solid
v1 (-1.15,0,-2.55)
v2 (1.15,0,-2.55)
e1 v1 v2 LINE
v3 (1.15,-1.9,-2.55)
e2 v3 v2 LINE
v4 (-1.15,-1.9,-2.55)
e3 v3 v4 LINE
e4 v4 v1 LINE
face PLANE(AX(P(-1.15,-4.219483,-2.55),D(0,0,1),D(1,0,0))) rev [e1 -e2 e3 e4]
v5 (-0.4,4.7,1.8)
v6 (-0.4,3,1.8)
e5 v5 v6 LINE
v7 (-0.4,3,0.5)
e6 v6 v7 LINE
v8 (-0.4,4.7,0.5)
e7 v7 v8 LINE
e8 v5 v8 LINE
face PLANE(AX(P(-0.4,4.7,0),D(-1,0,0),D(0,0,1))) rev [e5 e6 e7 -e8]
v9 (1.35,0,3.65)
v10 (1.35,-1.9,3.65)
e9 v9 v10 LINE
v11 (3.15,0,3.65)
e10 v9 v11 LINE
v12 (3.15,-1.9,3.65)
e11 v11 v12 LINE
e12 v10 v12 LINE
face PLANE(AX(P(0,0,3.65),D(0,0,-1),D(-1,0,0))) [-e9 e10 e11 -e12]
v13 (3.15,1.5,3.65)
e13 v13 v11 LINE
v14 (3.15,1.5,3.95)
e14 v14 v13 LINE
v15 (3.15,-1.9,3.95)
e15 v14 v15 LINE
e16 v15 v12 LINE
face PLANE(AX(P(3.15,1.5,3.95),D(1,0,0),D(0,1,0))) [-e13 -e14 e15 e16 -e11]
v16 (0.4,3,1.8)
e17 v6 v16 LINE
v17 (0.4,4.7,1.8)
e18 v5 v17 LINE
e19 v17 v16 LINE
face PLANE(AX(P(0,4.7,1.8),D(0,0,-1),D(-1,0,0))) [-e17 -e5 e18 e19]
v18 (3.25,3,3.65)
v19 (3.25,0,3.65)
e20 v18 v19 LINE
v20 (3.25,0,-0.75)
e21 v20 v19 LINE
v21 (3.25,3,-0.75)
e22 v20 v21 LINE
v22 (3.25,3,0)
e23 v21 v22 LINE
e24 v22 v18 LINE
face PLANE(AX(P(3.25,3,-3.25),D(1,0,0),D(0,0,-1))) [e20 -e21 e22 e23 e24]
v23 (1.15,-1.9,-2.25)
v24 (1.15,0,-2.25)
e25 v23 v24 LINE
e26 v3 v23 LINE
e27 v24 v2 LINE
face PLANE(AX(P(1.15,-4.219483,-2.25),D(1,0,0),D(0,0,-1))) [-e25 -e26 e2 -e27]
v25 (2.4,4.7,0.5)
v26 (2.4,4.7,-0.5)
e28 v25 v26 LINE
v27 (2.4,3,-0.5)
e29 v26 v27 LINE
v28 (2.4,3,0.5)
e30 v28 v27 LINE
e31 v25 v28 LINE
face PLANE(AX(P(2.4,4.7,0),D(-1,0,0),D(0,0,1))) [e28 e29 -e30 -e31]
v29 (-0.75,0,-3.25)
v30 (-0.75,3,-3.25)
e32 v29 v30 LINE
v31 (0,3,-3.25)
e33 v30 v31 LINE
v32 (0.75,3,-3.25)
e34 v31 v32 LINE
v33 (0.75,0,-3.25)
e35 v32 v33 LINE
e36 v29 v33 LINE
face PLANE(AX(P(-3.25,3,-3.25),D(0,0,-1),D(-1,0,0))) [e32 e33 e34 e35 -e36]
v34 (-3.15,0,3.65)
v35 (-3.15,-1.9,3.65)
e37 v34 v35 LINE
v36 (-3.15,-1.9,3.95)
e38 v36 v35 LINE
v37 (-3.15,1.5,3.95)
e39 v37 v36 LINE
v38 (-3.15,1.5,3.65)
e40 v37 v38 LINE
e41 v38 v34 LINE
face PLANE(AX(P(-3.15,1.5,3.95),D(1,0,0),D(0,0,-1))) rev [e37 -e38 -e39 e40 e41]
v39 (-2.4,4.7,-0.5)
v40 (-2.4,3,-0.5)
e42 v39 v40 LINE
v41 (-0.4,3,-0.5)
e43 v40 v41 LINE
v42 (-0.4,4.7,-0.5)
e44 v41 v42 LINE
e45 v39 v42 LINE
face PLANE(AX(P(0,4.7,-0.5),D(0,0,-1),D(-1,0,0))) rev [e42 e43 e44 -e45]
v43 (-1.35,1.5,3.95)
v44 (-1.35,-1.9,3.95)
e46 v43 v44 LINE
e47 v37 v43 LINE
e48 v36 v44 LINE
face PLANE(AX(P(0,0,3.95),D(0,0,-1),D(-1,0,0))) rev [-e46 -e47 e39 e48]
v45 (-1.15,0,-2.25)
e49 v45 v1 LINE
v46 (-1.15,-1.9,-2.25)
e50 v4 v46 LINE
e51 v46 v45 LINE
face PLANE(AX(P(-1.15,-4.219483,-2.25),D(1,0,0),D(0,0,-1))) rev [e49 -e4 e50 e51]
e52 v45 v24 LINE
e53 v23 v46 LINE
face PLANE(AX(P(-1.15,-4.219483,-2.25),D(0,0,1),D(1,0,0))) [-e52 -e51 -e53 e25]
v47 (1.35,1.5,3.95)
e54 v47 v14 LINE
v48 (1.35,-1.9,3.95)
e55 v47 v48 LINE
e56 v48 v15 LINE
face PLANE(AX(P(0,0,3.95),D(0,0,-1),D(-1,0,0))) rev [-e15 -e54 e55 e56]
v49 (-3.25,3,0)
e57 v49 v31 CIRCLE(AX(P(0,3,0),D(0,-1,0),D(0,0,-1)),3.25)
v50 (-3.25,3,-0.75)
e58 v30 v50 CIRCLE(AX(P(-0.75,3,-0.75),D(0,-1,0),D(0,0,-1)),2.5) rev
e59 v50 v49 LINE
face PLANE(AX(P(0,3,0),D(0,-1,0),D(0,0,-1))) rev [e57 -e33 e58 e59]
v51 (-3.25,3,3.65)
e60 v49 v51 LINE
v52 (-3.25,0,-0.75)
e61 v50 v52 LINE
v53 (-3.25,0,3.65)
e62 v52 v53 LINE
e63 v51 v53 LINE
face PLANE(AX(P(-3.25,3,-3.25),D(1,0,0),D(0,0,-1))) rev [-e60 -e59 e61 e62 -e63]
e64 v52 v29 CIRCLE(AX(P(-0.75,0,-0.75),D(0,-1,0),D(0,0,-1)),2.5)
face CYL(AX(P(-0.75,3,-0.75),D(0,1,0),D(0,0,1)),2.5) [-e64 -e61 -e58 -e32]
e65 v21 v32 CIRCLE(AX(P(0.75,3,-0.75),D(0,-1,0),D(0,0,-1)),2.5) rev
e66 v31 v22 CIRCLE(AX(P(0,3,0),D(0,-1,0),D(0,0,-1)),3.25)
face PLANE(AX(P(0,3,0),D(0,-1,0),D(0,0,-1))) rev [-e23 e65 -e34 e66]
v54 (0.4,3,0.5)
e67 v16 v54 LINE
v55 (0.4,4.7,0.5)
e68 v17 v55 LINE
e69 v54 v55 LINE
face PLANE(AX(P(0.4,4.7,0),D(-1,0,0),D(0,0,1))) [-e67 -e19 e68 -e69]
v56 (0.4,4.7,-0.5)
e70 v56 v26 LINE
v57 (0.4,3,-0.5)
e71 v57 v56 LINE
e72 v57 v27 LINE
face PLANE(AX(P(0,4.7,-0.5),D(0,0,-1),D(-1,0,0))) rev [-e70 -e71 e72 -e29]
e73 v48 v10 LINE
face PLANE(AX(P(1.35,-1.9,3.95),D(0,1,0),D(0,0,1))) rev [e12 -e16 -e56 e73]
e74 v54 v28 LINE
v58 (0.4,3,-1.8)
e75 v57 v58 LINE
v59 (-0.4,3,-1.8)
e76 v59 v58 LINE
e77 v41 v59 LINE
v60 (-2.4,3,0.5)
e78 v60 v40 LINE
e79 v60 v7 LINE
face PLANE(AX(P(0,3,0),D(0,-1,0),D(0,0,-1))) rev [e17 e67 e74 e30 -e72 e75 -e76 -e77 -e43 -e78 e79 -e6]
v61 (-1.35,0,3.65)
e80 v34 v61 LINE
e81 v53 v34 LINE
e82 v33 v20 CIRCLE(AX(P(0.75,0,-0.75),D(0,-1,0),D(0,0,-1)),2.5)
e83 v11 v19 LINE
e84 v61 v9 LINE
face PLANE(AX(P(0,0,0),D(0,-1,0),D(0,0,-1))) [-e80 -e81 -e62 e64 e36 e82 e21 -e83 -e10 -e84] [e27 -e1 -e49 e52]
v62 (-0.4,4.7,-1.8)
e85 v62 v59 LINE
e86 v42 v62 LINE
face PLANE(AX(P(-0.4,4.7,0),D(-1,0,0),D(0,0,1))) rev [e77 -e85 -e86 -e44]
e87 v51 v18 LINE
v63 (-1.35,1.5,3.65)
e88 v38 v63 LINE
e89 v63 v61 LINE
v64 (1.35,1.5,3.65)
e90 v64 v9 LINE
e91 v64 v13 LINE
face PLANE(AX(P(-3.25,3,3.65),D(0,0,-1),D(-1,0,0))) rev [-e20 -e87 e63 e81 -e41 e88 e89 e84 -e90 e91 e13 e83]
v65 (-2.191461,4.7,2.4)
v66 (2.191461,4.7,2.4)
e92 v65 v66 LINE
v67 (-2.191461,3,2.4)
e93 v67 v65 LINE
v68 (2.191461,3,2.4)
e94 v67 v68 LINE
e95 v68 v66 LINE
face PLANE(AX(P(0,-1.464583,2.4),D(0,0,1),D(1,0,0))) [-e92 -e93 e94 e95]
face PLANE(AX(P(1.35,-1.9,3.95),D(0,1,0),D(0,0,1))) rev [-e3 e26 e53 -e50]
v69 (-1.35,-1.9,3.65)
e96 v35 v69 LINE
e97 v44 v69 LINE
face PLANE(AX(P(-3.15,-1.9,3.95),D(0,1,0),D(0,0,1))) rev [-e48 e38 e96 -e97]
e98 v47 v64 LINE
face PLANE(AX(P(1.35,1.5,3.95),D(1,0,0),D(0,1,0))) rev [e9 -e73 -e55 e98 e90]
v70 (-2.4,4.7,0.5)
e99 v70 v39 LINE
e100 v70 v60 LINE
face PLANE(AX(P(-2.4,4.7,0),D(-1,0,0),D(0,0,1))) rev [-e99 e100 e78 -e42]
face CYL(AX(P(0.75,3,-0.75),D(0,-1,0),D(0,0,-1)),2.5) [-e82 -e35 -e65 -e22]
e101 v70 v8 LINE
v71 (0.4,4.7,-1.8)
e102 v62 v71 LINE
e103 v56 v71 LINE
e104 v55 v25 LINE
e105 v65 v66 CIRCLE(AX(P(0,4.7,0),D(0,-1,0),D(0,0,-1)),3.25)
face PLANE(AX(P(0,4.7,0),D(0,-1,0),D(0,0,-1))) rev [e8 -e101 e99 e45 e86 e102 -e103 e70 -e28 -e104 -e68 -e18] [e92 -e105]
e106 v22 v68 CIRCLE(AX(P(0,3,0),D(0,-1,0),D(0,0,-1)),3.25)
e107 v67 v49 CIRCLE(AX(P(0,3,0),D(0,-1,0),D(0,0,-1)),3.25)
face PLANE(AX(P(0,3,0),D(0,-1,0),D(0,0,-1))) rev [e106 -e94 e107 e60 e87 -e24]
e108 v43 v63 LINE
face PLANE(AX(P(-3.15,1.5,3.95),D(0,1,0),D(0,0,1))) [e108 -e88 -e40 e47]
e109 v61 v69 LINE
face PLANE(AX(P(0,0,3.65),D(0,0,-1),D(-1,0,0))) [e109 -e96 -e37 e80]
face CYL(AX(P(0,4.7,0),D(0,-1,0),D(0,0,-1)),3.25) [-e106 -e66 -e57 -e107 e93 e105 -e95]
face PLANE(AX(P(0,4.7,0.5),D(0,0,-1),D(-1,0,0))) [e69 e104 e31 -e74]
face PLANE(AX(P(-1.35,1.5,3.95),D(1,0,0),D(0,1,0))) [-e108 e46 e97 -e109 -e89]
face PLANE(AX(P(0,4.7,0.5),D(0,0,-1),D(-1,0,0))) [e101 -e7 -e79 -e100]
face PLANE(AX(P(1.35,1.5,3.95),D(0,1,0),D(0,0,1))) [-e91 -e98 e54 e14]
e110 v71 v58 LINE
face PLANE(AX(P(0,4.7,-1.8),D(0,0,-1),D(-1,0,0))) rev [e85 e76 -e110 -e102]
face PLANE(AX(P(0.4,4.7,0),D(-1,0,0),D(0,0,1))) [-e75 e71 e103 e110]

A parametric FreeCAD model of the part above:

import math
import FreeCAD as App
import Part
import Sketcher

V = App.Vector
Q = App.Units.Quantity


def edges_at(feature, points):
    """Names of the edges that pass closest to the given points."""
    edges = feature.Shape.Edges
    near = lambda p: min(range(len(edges)), key=lambda i: edges[i].distToShape(Part.Vertex(*p))[0])
    return sorted({f"Edge{near(p) + 1}" for p in points})


def add_polygon(sketch, points):
    """Adds a closed chain of lines whose ends are joined by coincident constraints."""
    first, n = sketch.GeometryCount, len(points)
    for a, b in zip(points, points[1:] + points[:1]):
        sketch.addGeometry(Part.LineSegment(App.Vector(*a, 0), App.Vector(*b, 0)), False)
    for i in range(n):
        sketch.addConstraint(Sketcher.Constraint("Coincident", first + i, 2, first + (i + 1) % n, 1))

doc = App.newDocument("Part")
body = doc.addObject("PartDesign::Body", "Body")

# Sketch on XZ plane
sketch1 = body.newObject("Sketcher::SketchObject", "Sketch")
sketch1.AttachmentSupport = (doc.getObject("XZ_Plane"), [""])
sketch1.MapMode = "FlatFace"
add_polygon(sketch1, [(-3.25, -3.25), (-3.25, 3.65), (3.25, 3.65), (3.25, -3.25)])  # lines 0-3
sketch1.addConstraint(Sketcher.Constraint("Vertical", 0))
sketch1.addConstraint(Sketcher.Constraint("Horizontal", 1))
sketch1.addConstraint(Sketcher.Constraint("Vertical", 2))
sketch1.addConstraint(Sketcher.Constraint("Horizontal", 3))
sketch1.addConstraint(Sketcher.Constraint("DistanceX", 1, 1, 1, 2, Q("6.5 mm")))
sketch1.addConstraint(Sketcher.Constraint("DistanceY", 0, 1, 0, 2, Q("6.9 mm")))
sketch1.addConstraint(Sketcher.Constraint("DistanceX", 0, 2, -1, 1, Q("3.25 mm")))
sketch1.addConstraint(Sketcher.Constraint("DistanceY", -1, 1, 0, 2, Q("3.65 mm")))
pad1 = body.newObject("PartDesign::Pad", "Pad")
pad1.Profile = sketch1
pad1.Length = 3
pad1.Reversed = True

# Sketch on XZ plane
sketch2 = body.newObject("Sketcher::SketchObject", "Sketch001")
sketch2.AttachmentSupport = (doc.getObject("XZ_Plane"), [""])
sketch2.MapMode = "FlatFace"
sketch2.AttachmentOffset = App.Placement(V(0, 0, -3), App.Rotation())
sketch2.addGeometry(Part.Circle(V(0, 0, 0), V(0, 0, 1), 3.25), False)  # 0
add_polygon(sketch2, [(-0.4, 0.5), (-2.4, 0.5), (-2.4, -0.5), (-0.4, -0.5), (-0.4, -1.8), (0.4, -1.8), (0.4, -0.5), (2.4, -0.5), (2.4, 0.5), (0.4, 0.5), (0.4, 1.8), (-0.4, 1.8)])  # lines 1-12
sketch2.addConstraint(Sketcher.Constraint("Horizontal", 1))
sketch2.addConstraint(Sketcher.Constraint("Vertical", 2))
sketch2.addConstraint(Sketcher.Constraint("Horizontal", 3))
sketch2.addConstraint(Sketcher.Constraint("Vertical", 4))
sketch2.addConstraint(Sketcher.Constraint("Horizontal", 5))
sketch2.addConstraint(Sketcher.Constraint("Vertical", 6))
sketch2.addConstraint(Sketcher.Constraint("Horizontal", 7))
sketch2.addConstraint(Sketcher.Constraint("Vertical", 8))
sketch2.addConstraint(Sketcher.Constraint("Horizontal", 9))
sketch2.addConstraint(Sketcher.Constraint("Vertical", 10))
sketch2.addConstraint(Sketcher.Constraint("Horizontal", 11))
sketch2.addConstraint(Sketcher.Constraint("Vertical", 12))
sketch2.addConstraint(Sketcher.Constraint("Coincident", 0, 3, -1, 1))
sketch2.addConstraint(Sketcher.Constraint("Symmetric", 1, 2, 7, 2, -1, 1))
sketch2.addConstraint(Sketcher.Constraint("Symmetric", 3, 2, 9, 2, -1, 1))
sketch2.addConstraint(Sketcher.Constraint("Symmetric", 5, 2, 11, 2, -1, 1))
sketch2.addConstraint(Sketcher.Constraint("Symmetric", 3, 2, 6, 2, -2))
sketch2.addConstraint(Sketcher.Constraint("Diameter", 0, Q("6.5 mm")))
sketch2.addConstraint(Sketcher.Constraint("DistanceX", 1, 2, 1, 1, Q("2 mm")))
sketch2.addConstraint(Sketcher.Constraint("DistanceY", 2, 2, 2, 1, Q("1 mm")))
sketch2.addConstraint(Sketcher.Constraint("DistanceX", 5, 1, 5, 2, Q("0.8 mm")))
sketch2.addConstraint(Sketcher.Constraint("DistanceY", 4, 2, 4, 1, Q("1.3 mm")))
pad2 = body.newObject("PartDesign::Pad", "Pad001")
pad2.Profile = sketch2
pad2.Length = 1.7
pad2.Reversed = True

# Sketch on XZ plane
sketch3 = body.newObject("Sketcher::SketchObject", "Sketch002")
sketch3.AttachmentSupport = (doc.getObject("XZ_Plane"), [""])
sketch3.MapMode = "FlatFace"
sketch3.AttachmentOffset = App.Placement(V(0, 0, -3), App.Rotation())
sketch3.addGeometry(Part.LineSegment(V(2.191461, 2.4, 0), V(-2.191461, 2.4, 0)), False)
sketch3.addGeometry(Part.ArcOfCircle(Part.Circle(V(0, 0, 0), V(0, 0, 1), 3.25), math.radians(47.600527), math.radians(132.399473)), False)
sketch3.addConstraint(Sketcher.Constraint("Coincident", 0, 1, 1, 1))
sketch3.addConstraint(Sketcher.Constraint("Coincident", 1, 2, 0, 2))
sketch3.addConstraint(Sketcher.Constraint("Horizontal", 0))
sketch3.addConstraint(Sketcher.Constraint("Coincident", 1, 3, -1, 1))
sketch3.addConstraint(Sketcher.Constraint("Radius", 1, Q("3.25 mm")))
sketch3.addConstraint(Sketcher.Constraint("DistanceY", -1, 1, 0, 1, Q("2.4 mm")))
pocket1 = body.newObject("PartDesign::Pocket", "Pocket")
pocket1.Profile = sketch3
pocket1.Length = 1.7
doc.recompute()

fillet = body.newObject("PartDesign::Fillet", "Fillet")
fillet.Base = (pocket1, edges_at(pocket1, [(-3.25, 1.5, -3.25), (3.25, 1.5, -3.25)]))
fillet.Radius = 2.5

# Sketch on XY plane
sketch4 = body.newObject("Sketcher::SketchObject", "Sketch003")
sketch4.AttachmentSupport = (doc.getObject("XY_Plane"), [""])
sketch4.MapMode = "FlatFace"
sketch4.AttachmentOffset = App.Placement(V(0, 0, 3.65), App.Rotation())
add_polygon(sketch4, [(-3.15, 1.5), (-3.15, -1.9), (-1.35, -1.9), (-1.35, 1.5)])  # lines 0-3
add_polygon(sketch4, [(1.35, 1.5), (1.35, -1.9), (3.15, -1.9), (3.15, 1.5)])  # lines 4-7
sketch4.addConstraint(Sketcher.Constraint("Vertical", 0))
sketch4.addConstraint(Sketcher.Constraint("Horizontal", 1))
sketch4.addConstraint(Sketcher.Constraint("Vertical", 2))
sketch4.addConstraint(Sketcher.Constraint("Horizontal", 3))
sketch4.addConstraint(Sketcher.Constraint("Vertical", 4))
sketch4.addConstraint(Sketcher.Constraint("Horizontal", 5))
sketch4.addConstraint(Sketcher.Constraint("Vertical", 6))
sketch4.addConstraint(Sketcher.Constraint("Horizontal", 7))
sketch4.addConstraint(Sketcher.Constraint("Symmetric", 1, 2, 4, 2, -2))
sketch4.addConstraint(Sketcher.Constraint("Symmetric", 3, 2, 6, 2, -2))
sketch4.addConstraint(Sketcher.Constraint("DistanceX", 1, 1, 1, 2, Q("1.8 mm")))
sketch4.addConstraint(Sketcher.Constraint("DistanceY", 0, 2, 0, 1, Q("3.4 mm")))
sketch4.addConstraint(Sketcher.Constraint("DistanceY", 0, 2, -1, 1, Q("1.9 mm")))
sketch4.addConstraint(Sketcher.Constraint("DistanceX", 1, 2, 4, 2, Q("2.7 mm")))
pad3 = body.newObject("PartDesign::Pad", "Pad002")
pad3.Profile = sketch4
pad3.Length = 0.3

# Sketch on XZ plane
sketch5 = body.newObject("Sketcher::SketchObject", "Sketch004")
sketch5.AttachmentSupport = (doc.getObject("XZ_Plane"), [""])
sketch5.MapMode = "FlatFace"
add_polygon(sketch5, [(-1.15, -2.25), (-1.15, -2.55), (1.15, -2.55), (1.15, -2.25)])  # lines 0-3
sketch5.addConstraint(Sketcher.Constraint("Vertical", 0))
sketch5.addConstraint(Sketcher.Constraint("Horizontal", 1))
sketch5.addConstraint(Sketcher.Constraint("Vertical", 2))
sketch5.addConstraint(Sketcher.Constraint("Horizontal", 3))
sketch5.addConstraint(Sketcher.Constraint("DistanceX", 1, 1, 1, 2, Q("2.3 mm")))
sketch5.addConstraint(Sketcher.Constraint("DistanceY", 0, 2, 0, 1, Q("0.3 mm")))
sketch5.addConstraint(Sketcher.Constraint("DistanceX", 0, 2, -1, 1, Q("1.15 mm")))
sketch5.addConstraint(Sketcher.Constraint("DistanceY", 0, 2, -1, 1, Q("2.55 mm")))
pad4 = body.newObject("PartDesign::Pad", "Pad003")
pad4.Profile = sketch5
pad4.Length = 1.9

doc.recompute()
